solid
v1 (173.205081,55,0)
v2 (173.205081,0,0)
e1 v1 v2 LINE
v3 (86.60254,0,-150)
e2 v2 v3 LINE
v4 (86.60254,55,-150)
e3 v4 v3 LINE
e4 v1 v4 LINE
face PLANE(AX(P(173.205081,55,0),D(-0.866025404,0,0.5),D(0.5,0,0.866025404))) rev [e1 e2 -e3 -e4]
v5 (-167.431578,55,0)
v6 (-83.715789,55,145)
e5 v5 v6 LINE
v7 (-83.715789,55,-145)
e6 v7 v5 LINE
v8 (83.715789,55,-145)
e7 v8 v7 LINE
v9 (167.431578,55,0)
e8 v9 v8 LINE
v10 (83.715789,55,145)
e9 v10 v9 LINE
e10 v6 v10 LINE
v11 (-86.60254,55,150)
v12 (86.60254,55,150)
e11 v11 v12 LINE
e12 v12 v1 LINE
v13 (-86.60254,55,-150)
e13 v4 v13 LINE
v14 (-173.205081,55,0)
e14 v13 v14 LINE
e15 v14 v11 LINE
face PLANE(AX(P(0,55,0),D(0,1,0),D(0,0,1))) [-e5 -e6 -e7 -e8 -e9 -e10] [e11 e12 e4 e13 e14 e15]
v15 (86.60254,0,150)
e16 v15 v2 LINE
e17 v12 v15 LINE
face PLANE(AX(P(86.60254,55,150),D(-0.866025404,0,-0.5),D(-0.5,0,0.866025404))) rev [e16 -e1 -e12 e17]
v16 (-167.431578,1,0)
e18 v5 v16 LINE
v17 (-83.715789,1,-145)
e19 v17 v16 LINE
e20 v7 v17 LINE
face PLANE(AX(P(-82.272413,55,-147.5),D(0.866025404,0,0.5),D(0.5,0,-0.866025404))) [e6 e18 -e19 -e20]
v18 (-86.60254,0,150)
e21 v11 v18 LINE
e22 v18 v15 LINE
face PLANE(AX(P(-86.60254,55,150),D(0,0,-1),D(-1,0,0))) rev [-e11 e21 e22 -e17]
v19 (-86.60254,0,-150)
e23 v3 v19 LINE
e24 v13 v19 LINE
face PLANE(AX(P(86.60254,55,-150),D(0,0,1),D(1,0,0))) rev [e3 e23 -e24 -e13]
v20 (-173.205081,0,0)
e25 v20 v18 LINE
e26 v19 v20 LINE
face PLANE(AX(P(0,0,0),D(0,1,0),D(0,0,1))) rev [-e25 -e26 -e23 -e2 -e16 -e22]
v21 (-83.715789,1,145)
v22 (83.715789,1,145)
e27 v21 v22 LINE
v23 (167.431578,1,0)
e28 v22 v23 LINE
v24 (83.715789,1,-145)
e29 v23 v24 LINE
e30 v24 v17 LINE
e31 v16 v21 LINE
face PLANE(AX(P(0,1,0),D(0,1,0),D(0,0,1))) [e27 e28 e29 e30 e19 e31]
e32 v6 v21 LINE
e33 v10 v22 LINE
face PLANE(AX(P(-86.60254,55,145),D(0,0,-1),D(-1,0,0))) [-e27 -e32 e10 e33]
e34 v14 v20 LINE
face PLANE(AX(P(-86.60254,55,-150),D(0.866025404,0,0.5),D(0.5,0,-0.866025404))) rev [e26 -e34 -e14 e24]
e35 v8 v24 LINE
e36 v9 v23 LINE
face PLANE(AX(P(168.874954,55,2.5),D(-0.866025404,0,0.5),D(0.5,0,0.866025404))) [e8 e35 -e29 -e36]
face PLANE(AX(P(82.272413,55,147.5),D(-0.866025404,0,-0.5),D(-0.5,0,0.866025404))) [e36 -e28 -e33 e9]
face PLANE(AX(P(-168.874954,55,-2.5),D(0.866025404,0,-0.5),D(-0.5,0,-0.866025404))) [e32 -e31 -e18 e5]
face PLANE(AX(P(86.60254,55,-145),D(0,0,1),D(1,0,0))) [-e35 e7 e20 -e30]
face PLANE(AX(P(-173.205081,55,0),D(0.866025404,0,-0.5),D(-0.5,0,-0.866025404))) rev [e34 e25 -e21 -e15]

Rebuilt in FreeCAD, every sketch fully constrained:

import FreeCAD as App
import Part
import Sketcher
from FreeCAD import Vector
Q = App.Units.Quantity


def faces_at(feature, points):
    """Names of the faces that lie closest to the given points."""
    faces = feature.Shape.Faces
    near = lambda p: min(range(len(faces)), key=lambda i: faces[i].distToShape(Part.Vertex(*p))[0])
    return sorted({f"Face{near(p) + 1}" for p in points})


def add_polygon(sketch, points):
    """Adds a closed chain of lines whose ends are joined by coincident constraints."""
    first, n = sketch.GeometryCount, len(points)
    for a, b in zip(points, points[1:] + points[:1]):
        sketch.addGeometry(Part.LineSegment(App.Vector(*a, 0), App.Vector(*b, 0)), False)
    for i in range(n):
        sketch.addConstraint(Sketcher.Constraint("Coincident", first + i, 2, first + (i + 1) % n, 1))

doc = App.newDocument("Part")
params = doc.addObject("Spreadsheet::Sheet", "Params")
for row, (alias, value) in enumerate([
    ("pad1_length", "55 mm"),
    ("thickness_wall", "5 mm"),
    ("pocket1_length", "4 mm"),
], start=1):
    params.set(f"A{row}", alias)
    params.set(f"B{row}", "=" + value)
    params.setAlias(f"B{row}", alias)

body = doc.addObject("PartDesign::Body", "Body")

# Sketch on XZ plane
sketch1 = doc.addObject("Sketcher::SketchObject", "Sketch")
body.addObject(sketch1)
sketch1.AttachmentSupport = (doc.XZ_Plane, [""])
sketch1.MapMode = "FlatFace"
add_polygon(sketch1, [(173, 0), (87, -150), (-87, -150), (-173, 0), (-87, 150), (87, 150)])  # lines 0-5
sketch1.addConstraint(Sketcher.Constraint("Horizontal", 1))
sketch1.addConstraint(Sketcher.Constraint("Horizontal", 4))
sketch1.addConstraint(Sketcher.Constraint("Symmetric", 0, 2, 3, 2, -1, 1))
sketch1.addConstraint(Sketcher.Constraint("Symmetric", 2, 2, 5, 2, -1, 1))
sketch1.addConstraint(Sketcher.Constraint("PointOnObject", 2, 2, -1))
sketch1.addConstraint(Sketcher.Constraint("Parallel", 2, 5))
sketch1.addConstraint(Sketcher.Constraint("Vertical", 1, 2, 3, 2))
sketch1.addConstraint(Sketcher.Constraint("Angle", 0, Q("-120 deg")))
sketch1.addConstraint(Sketcher.Constraint("DistanceY", 0, 2, -1, 1, 150.0))
sketch1.addConstraint(Sketcher.Constraint("DistanceX", 1, 2, 1, 1, 173.205081))
pad1 = doc.addObject("PartDesign::Pad", "Pad")
body.addObject(pad1)
pad1.Profile = sketch1
pad1.setExpression("Length", "Params.pad1_length")
pad1.Reversed = True
doc.recompute()

thickness = doc.addObject("PartDesign::Thickness", "Thickness")
body.addObject(thickness)
thickness.Base = (pad1, faces_at(pad1, [(0, 55, 0)]))
thickness.setExpression("Value", "Params.thickness_wall")
thickness.Reversed = True
thickness.Join = "Intersection"

# Sketch on XZ plane
sketch2 = doc.addObject("Sketcher::SketchObject", "Sketch001")
body.addObject(sketch2)
sketch2.AttachmentSupport = (doc.XZ_Plane, [""])
sketch2.MapMode = "FlatFace"
sketch2.AttachmentOffset = App.Placement(Vector(0, 0, -5), App.Rotation())
add_polygon(sketch2, [(167, 0), (84, 145), (-84, 145), (-167, 0), (-84, -145), (84, -145)])  # lines 0-5
sketch2.addConstraint(Sketcher.Constraint("Horizontal", 1))
sketch2.addConstraint(Sketcher.Constraint("Horizontal", 4))
sketch2.addConstraint(Sketcher.Constraint("Symmetric", 0, 2, 3, 2, -1, 1))
sketch2.addConstraint(Sketcher.Constraint("Symmetric", 2, 2, 5, 2, -1, 1))
sketch2.addConstraint(Sketcher.Constraint("PointOnObject", 2, 2, -1))
sketch2.addConstraint(Sketcher.Constraint("Parallel", 2, 5))
sketch2.addConstraint(Sketcher.Constraint("Vertical", 1, 2, 3, 2))
sketch2.addConstraint(Sketcher.Constraint("Angle", 0, Q("120 deg")))
sketch2.addConstraint(Sketcher.Constraint("DistanceY", -1, 1, 0, 2, 145.0))
sketch2.addConstraint(Sketcher.Constraint("DistanceX", 1, 2, 1, 1, 167.431578))
pocket1 = doc.addObject("PartDesign::Pocket", "Pocket")
body.addObject(pocket1)
pocket1.Profile = sketch2
pocket1.setExpression("Length", "Params.pocket1_length")
pocket1.Reversed = True

doc.recompute()
